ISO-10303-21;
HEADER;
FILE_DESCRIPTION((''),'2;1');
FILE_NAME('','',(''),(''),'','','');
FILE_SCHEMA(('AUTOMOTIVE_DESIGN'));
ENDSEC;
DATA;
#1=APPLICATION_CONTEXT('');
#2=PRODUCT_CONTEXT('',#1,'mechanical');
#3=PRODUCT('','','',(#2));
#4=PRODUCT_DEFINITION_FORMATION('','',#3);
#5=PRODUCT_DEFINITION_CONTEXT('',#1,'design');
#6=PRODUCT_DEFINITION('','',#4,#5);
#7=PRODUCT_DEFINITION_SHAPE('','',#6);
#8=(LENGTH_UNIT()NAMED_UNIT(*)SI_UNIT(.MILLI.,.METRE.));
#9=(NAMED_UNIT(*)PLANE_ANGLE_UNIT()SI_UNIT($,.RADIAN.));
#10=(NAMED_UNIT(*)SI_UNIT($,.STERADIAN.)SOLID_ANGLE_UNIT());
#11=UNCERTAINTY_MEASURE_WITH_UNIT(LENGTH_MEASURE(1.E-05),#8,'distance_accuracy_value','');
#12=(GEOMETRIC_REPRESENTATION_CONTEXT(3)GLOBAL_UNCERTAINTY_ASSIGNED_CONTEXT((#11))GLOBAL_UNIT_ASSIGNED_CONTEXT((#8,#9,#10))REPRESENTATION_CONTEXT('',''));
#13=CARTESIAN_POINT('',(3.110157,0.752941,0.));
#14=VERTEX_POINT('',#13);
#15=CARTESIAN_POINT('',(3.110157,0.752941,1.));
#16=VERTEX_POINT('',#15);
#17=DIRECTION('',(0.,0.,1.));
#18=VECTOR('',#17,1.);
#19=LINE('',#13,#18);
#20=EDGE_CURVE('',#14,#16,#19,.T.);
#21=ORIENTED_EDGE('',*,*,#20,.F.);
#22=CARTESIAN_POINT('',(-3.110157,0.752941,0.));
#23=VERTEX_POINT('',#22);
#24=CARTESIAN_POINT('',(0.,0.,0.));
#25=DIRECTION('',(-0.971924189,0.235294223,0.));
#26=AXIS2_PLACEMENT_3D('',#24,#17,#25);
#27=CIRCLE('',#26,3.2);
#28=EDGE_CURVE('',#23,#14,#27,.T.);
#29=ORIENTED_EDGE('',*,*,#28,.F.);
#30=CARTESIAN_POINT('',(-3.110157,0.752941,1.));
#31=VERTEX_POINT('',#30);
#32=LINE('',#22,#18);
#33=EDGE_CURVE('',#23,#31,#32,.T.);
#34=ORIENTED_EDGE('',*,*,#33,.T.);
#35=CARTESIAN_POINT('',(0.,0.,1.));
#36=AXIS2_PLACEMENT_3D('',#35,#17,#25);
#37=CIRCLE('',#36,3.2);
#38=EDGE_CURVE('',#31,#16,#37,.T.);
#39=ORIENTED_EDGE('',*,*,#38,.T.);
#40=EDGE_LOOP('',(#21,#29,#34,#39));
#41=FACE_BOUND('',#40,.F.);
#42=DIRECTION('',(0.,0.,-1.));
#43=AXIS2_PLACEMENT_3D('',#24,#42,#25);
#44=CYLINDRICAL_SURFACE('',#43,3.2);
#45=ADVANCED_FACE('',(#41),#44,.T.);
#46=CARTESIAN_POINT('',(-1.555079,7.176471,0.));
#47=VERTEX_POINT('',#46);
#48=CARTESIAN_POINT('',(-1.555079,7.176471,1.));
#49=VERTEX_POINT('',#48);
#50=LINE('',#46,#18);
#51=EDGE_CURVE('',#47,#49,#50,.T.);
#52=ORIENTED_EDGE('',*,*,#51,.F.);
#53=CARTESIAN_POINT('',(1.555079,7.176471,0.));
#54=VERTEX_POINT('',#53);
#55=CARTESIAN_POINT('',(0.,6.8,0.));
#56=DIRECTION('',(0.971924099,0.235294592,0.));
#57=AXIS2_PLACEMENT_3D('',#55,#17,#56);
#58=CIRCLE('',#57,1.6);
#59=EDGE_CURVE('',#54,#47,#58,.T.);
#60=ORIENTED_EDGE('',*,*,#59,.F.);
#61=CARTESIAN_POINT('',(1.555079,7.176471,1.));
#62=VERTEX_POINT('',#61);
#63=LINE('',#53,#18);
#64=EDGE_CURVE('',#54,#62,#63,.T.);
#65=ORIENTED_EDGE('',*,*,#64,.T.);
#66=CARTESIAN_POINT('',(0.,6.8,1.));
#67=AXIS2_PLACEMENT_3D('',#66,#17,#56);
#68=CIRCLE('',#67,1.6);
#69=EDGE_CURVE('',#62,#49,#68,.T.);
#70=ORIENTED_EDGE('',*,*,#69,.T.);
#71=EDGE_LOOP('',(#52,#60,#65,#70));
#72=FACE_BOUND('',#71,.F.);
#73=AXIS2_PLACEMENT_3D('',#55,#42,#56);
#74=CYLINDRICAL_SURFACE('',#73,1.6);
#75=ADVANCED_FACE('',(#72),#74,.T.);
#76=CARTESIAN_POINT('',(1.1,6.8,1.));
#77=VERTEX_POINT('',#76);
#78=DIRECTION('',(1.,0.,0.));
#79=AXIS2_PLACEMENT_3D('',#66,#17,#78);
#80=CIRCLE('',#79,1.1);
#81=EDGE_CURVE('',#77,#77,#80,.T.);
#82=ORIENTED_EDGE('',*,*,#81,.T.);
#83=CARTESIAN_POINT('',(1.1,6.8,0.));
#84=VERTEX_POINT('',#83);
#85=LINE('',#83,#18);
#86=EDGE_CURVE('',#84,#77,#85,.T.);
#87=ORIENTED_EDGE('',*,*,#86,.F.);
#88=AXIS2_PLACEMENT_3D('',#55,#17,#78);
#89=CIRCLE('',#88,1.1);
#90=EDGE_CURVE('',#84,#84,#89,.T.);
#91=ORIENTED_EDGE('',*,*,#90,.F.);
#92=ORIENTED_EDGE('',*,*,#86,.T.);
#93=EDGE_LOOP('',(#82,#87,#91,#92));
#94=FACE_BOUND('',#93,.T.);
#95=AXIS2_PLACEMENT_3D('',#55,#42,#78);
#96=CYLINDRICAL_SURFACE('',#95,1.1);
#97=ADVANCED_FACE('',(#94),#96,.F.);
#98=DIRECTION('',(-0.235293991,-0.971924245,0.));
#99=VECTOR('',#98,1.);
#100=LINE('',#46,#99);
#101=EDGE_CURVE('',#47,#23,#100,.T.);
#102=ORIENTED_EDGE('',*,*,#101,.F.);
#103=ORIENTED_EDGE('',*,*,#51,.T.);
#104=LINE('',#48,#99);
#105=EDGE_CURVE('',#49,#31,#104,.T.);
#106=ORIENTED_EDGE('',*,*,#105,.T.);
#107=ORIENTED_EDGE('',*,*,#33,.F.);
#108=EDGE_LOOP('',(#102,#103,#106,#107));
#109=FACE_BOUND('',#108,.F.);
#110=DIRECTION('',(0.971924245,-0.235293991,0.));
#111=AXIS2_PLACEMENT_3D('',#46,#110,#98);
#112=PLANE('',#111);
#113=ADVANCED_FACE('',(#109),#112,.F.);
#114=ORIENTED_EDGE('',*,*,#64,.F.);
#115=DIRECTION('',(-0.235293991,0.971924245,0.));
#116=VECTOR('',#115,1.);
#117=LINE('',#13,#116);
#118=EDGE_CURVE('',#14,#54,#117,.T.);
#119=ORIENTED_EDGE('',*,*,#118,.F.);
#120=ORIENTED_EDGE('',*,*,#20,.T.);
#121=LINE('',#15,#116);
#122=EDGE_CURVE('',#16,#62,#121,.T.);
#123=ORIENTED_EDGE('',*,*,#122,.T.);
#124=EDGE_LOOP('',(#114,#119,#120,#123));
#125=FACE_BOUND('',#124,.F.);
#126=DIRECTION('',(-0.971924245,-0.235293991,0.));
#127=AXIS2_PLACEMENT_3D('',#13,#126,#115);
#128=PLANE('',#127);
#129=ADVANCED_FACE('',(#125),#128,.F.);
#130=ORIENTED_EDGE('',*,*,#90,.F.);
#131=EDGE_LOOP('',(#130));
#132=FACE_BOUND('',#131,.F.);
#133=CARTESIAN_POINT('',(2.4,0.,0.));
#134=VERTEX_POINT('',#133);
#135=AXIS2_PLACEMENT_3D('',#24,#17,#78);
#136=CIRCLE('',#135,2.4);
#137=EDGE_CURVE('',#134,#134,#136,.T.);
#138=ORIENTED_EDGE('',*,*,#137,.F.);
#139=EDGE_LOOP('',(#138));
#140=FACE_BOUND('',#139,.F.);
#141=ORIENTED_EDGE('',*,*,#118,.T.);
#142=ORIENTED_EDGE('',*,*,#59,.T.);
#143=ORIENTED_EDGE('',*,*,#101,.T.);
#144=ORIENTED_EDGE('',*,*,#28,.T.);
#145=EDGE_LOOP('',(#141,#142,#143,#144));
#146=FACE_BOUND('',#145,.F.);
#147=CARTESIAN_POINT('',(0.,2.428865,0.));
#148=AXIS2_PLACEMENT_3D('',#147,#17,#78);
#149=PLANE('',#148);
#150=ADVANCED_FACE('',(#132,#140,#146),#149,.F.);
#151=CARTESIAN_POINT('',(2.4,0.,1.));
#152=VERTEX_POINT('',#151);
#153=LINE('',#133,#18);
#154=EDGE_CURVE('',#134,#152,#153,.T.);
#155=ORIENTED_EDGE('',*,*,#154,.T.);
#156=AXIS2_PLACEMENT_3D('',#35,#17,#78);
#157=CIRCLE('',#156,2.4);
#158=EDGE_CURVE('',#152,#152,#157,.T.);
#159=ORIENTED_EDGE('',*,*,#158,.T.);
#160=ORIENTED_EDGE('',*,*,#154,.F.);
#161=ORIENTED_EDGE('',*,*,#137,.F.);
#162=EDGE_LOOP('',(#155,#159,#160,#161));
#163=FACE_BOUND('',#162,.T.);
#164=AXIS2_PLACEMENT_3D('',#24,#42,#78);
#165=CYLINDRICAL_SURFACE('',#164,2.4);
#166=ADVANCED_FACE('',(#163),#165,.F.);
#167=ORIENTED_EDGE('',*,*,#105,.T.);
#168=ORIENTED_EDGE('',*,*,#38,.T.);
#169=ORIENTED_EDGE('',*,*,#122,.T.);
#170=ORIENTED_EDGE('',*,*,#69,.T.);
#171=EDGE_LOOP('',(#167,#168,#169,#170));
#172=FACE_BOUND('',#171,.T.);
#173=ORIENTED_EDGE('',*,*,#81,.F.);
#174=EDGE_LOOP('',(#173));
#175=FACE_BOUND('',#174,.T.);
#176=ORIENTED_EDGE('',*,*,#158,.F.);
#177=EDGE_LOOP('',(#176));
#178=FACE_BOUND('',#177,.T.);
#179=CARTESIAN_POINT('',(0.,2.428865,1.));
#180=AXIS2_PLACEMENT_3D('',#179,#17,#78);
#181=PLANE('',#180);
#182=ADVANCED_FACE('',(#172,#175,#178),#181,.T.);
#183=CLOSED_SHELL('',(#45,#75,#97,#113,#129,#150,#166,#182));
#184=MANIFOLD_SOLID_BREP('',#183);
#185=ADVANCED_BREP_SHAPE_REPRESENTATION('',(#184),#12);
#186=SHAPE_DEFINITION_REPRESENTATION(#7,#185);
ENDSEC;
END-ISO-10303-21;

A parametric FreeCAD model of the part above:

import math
import FreeCAD as App
import Part
import Sketcher
from FreeCAD import Vector
Q = App.Units.Quantity

doc = App.newDocument("Part")
body = doc.addObject("PartDesign::Body", "Body")

sketch1 = body.newObject("Sketcher::SketchObject", "Sketch")
sketch1.AttachmentSupport = (doc.getObject("XY_Plane"), [""])
sketch1.MapMode = "FlatFace"
sketch1.addGeometry(Part.LineSegment(Vector(3.1, 0.8, 0), Vector(1.6, 7.2, 0)), False)
sketch1.addGeometry(Part.ArcOfCircle(Part.Circle(Vector(0, 6.8, 0), Vector(0, 0, 1), 1.6), math.radians(14), math.radians(166)), False)
sketch1.addGeometry(Part.LineSegment(Vector(-1.6, 7.2, 0), Vector(-3.1, 0.8, 0)), False)
sketch1.addGeometry(Part.ArcOfCircle(Part.Circle(Vector(0, 0, 0), Vector(0, 0, 1), 3.2), math.radians(166), math.radians(374)), False)
sketch1.addGeometry(Part.Circle(Vector(0, 0, 0), Vector(0, 0, 1), 2.4), False)
sketch1.addGeometry(Part.Circle(Vector(0, 6.8, 0), Vector(0, 0, 1), 1.1), False)
sketch1.addConstraint(Sketcher.Constraint("Tangent", 0, 2, 1, 1))
sketch1.addConstraint(Sketcher.Constraint("Tangent", 1, 2, 2, 1))
sketch1.addConstraint(Sketcher.Constraint("Tangent", 2, 2, 3, 1))
sketch1.addConstraint(Sketcher.Constraint("Tangent", 3, 2, 0, 1))
sketch1.addConstraint(Sketcher.Constraint("Coincident", 3, 3, -1, 1))
sketch1.addConstraint(Sketcher.Constraint("Coincident", 4, 3, -1, 1))
sketch1.addConstraint(Sketcher.Constraint("Coincident", 5, 3, 1, 3))
sketch1.addConstraint(Sketcher.Constraint("PointOnObject", 1, 3, -2))
sketch1.addConstraint(Sketcher.Constraint("Diameter", 4, Q("4.8 mm")))
sketch1.addConstraint(Sketcher.Constraint("Diameter", 5, Q("2.2 mm")))
sketch1.addConstraint(Sketcher.Constraint("Radius", 1, Q("1.6 mm")))
sketch1.addConstraint(Sketcher.Constraint("Radius", 3, Q("3.2 mm")))
sketch1.addConstraint(Sketcher.Constraint("DistanceY", -1, 1, 1, 3, Q("6.8 mm")))
pad1 = body.newObject("PartDesign::Pad", "Pad")
pad1.Profile = sketch1
pad1.Length = 1

doc.recompute()
